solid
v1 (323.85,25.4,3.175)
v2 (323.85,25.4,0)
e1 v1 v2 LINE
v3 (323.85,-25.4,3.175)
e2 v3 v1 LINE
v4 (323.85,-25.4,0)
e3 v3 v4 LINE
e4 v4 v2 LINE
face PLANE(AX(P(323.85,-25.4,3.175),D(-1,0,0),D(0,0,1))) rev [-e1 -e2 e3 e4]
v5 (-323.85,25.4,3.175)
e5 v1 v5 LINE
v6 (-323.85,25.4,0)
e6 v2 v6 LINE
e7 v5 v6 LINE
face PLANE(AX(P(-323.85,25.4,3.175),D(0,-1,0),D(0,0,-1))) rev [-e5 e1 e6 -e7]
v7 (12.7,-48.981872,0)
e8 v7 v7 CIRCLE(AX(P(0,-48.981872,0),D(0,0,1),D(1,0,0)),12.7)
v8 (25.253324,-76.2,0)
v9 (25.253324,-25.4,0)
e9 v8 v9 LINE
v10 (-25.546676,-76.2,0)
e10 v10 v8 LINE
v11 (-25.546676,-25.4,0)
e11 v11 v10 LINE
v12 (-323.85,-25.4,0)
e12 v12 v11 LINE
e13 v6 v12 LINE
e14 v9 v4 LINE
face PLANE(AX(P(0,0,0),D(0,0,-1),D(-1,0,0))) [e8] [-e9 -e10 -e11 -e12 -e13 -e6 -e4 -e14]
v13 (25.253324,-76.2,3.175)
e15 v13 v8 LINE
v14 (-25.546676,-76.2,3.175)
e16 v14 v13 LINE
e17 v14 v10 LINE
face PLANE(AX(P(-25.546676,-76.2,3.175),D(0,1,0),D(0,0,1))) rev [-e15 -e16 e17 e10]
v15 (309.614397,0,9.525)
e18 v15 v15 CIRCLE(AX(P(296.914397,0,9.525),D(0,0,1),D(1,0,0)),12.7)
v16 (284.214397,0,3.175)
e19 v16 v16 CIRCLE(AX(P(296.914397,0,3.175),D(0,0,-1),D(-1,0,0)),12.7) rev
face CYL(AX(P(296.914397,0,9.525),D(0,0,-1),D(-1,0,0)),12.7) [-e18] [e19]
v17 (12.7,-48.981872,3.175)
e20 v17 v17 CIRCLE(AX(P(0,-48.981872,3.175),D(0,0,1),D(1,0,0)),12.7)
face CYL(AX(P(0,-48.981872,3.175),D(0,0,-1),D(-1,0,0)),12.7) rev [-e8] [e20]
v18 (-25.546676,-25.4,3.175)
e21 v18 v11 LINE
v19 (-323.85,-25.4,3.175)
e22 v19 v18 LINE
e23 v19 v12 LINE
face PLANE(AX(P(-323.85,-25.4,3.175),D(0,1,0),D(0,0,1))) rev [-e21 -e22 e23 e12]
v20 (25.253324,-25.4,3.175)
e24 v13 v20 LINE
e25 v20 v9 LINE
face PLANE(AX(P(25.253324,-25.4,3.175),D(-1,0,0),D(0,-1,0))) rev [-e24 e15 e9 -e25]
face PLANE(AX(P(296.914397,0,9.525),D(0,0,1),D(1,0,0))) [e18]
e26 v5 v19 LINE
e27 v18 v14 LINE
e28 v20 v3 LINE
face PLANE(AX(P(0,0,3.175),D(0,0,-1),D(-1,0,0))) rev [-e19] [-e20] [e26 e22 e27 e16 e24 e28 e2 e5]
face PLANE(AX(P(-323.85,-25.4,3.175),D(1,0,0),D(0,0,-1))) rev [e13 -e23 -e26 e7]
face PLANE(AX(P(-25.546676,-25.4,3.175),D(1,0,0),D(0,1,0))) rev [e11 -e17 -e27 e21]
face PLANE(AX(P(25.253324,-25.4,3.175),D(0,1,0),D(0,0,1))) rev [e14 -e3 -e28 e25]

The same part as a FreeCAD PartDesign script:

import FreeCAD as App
import Part
import Sketcher

V = App.Vector
Q = App.Units.Quantity


def add_polygon(sketch, points):
    """Adds a closed chain of lines whose ends are joined by coincident constraints."""
    first, n = sketch.GeometryCount, len(points)
    for a, b in zip(points, points[1:] + points[:1]):
        sketch.addGeometry(Part.LineSegment(App.Vector(*a, 0), App.Vector(*b, 0)), False)
    for i in range(n):
        sketch.addConstraint(Sketcher.Constraint("Coincident", first + i, 2, first + (i + 1) % n, 1))

doc = App.newDocument("Part")
body = doc.addObject("PartDesign::Body", "Body")

sketch1 = doc.addObject("Sketcher::SketchObject", "Sketch")
body.addObject(sketch1)
sketch1.AttachmentSupport = (doc.XY_Plane, [""])
sketch1.MapMode = "FlatFace"
add_polygon(sketch1, [(-323.85, -25.4), (-25.546676, -25.4), (-25.546676, -76.2), (25.253324, -76.2), (25.253324, -25.4), (323.85, -25.4), (323.85, 25.4), (-323.85, 25.4)])
sketch1.addGeometry(Part.Circle(V(0, -48.981872, 0), V(0, 0, 1), 12.7), False)
sketch1.addConstraint([
    Sketcher.Constraint("Horizontal", 0),
    Sketcher.Constraint("Vertical", 1),
    Sketcher.Constraint("Horizontal", 2),
    Sketcher.Constraint("Vertical", 3),
    Sketcher.Constraint("Horizontal", 4),
    Sketcher.Constraint("Vertical", 5),
    Sketcher.Constraint("Horizontal", 6),
    Sketcher.Constraint("Vertical", 7),
    Sketcher.Constraint("Symmetric", 4, 2, 6, 2, -1, 1),
    Sketcher.Constraint("PointOnObject", 8, 3, -2),
    Sketcher.Constraint("Horizontal", 0, 2, 3, 2),
    Sketcher.Constraint("Equal", 2, 1),
    Sketcher.Constraint("Equal", 3, 5),
    Sketcher.Constraint("Diameter", 8, Q("1 in")),
    Sketcher.Constraint("DistanceX", 2, 1, 2, 2, Q("2 in")),
    Sketcher.Constraint("DistanceX", 6, 2, 6, 1, Q("25.5 in")),
    Sketcher.Constraint("DistanceX", 0, 1, 0, 2, Q("298.303324 mm")),
    Sketcher.Constraint("DistanceY", 8, 3, -1, 1, Q("48.981872 mm")),
])
pad1 = doc.addObject("PartDesign::Pad", "Pad")
body.addObject(pad1)
pad1.Profile = sketch1
pad1.Length = Q("0.125 in")

sketch2 = doc.addObject("Sketcher::SketchObject", "Sketch001")
body.addObject(sketch2)
sketch2.AttachmentSupport = (doc.XY_Plane, [""])
sketch2.MapMode = "FlatFace"
sketch2.AttachmentOffset = App.Placement(V(0, 0, 0.125 * 25.4), App.Rotation())
sketch2.addGeometry(Part.Circle(V(296.914397, 0, 0), V(0, 0, 1), 12.7), False)
sketch2.addConstraint([
    Sketcher.Constraint("PointOnObject", 0, 3, -1),
    Sketcher.Constraint("Diameter", 0, Q("1 in")),
    Sketcher.Constraint("DistanceX", -1, 1, 0, 3, Q("296.914397 mm")),
])
pad2 = doc.addObject("PartDesign::Pad", "Pad001")
body.addObject(pad2)
pad2.Profile = sketch2
pad2.Length = Q("0.25 in")

doc.recompute()
